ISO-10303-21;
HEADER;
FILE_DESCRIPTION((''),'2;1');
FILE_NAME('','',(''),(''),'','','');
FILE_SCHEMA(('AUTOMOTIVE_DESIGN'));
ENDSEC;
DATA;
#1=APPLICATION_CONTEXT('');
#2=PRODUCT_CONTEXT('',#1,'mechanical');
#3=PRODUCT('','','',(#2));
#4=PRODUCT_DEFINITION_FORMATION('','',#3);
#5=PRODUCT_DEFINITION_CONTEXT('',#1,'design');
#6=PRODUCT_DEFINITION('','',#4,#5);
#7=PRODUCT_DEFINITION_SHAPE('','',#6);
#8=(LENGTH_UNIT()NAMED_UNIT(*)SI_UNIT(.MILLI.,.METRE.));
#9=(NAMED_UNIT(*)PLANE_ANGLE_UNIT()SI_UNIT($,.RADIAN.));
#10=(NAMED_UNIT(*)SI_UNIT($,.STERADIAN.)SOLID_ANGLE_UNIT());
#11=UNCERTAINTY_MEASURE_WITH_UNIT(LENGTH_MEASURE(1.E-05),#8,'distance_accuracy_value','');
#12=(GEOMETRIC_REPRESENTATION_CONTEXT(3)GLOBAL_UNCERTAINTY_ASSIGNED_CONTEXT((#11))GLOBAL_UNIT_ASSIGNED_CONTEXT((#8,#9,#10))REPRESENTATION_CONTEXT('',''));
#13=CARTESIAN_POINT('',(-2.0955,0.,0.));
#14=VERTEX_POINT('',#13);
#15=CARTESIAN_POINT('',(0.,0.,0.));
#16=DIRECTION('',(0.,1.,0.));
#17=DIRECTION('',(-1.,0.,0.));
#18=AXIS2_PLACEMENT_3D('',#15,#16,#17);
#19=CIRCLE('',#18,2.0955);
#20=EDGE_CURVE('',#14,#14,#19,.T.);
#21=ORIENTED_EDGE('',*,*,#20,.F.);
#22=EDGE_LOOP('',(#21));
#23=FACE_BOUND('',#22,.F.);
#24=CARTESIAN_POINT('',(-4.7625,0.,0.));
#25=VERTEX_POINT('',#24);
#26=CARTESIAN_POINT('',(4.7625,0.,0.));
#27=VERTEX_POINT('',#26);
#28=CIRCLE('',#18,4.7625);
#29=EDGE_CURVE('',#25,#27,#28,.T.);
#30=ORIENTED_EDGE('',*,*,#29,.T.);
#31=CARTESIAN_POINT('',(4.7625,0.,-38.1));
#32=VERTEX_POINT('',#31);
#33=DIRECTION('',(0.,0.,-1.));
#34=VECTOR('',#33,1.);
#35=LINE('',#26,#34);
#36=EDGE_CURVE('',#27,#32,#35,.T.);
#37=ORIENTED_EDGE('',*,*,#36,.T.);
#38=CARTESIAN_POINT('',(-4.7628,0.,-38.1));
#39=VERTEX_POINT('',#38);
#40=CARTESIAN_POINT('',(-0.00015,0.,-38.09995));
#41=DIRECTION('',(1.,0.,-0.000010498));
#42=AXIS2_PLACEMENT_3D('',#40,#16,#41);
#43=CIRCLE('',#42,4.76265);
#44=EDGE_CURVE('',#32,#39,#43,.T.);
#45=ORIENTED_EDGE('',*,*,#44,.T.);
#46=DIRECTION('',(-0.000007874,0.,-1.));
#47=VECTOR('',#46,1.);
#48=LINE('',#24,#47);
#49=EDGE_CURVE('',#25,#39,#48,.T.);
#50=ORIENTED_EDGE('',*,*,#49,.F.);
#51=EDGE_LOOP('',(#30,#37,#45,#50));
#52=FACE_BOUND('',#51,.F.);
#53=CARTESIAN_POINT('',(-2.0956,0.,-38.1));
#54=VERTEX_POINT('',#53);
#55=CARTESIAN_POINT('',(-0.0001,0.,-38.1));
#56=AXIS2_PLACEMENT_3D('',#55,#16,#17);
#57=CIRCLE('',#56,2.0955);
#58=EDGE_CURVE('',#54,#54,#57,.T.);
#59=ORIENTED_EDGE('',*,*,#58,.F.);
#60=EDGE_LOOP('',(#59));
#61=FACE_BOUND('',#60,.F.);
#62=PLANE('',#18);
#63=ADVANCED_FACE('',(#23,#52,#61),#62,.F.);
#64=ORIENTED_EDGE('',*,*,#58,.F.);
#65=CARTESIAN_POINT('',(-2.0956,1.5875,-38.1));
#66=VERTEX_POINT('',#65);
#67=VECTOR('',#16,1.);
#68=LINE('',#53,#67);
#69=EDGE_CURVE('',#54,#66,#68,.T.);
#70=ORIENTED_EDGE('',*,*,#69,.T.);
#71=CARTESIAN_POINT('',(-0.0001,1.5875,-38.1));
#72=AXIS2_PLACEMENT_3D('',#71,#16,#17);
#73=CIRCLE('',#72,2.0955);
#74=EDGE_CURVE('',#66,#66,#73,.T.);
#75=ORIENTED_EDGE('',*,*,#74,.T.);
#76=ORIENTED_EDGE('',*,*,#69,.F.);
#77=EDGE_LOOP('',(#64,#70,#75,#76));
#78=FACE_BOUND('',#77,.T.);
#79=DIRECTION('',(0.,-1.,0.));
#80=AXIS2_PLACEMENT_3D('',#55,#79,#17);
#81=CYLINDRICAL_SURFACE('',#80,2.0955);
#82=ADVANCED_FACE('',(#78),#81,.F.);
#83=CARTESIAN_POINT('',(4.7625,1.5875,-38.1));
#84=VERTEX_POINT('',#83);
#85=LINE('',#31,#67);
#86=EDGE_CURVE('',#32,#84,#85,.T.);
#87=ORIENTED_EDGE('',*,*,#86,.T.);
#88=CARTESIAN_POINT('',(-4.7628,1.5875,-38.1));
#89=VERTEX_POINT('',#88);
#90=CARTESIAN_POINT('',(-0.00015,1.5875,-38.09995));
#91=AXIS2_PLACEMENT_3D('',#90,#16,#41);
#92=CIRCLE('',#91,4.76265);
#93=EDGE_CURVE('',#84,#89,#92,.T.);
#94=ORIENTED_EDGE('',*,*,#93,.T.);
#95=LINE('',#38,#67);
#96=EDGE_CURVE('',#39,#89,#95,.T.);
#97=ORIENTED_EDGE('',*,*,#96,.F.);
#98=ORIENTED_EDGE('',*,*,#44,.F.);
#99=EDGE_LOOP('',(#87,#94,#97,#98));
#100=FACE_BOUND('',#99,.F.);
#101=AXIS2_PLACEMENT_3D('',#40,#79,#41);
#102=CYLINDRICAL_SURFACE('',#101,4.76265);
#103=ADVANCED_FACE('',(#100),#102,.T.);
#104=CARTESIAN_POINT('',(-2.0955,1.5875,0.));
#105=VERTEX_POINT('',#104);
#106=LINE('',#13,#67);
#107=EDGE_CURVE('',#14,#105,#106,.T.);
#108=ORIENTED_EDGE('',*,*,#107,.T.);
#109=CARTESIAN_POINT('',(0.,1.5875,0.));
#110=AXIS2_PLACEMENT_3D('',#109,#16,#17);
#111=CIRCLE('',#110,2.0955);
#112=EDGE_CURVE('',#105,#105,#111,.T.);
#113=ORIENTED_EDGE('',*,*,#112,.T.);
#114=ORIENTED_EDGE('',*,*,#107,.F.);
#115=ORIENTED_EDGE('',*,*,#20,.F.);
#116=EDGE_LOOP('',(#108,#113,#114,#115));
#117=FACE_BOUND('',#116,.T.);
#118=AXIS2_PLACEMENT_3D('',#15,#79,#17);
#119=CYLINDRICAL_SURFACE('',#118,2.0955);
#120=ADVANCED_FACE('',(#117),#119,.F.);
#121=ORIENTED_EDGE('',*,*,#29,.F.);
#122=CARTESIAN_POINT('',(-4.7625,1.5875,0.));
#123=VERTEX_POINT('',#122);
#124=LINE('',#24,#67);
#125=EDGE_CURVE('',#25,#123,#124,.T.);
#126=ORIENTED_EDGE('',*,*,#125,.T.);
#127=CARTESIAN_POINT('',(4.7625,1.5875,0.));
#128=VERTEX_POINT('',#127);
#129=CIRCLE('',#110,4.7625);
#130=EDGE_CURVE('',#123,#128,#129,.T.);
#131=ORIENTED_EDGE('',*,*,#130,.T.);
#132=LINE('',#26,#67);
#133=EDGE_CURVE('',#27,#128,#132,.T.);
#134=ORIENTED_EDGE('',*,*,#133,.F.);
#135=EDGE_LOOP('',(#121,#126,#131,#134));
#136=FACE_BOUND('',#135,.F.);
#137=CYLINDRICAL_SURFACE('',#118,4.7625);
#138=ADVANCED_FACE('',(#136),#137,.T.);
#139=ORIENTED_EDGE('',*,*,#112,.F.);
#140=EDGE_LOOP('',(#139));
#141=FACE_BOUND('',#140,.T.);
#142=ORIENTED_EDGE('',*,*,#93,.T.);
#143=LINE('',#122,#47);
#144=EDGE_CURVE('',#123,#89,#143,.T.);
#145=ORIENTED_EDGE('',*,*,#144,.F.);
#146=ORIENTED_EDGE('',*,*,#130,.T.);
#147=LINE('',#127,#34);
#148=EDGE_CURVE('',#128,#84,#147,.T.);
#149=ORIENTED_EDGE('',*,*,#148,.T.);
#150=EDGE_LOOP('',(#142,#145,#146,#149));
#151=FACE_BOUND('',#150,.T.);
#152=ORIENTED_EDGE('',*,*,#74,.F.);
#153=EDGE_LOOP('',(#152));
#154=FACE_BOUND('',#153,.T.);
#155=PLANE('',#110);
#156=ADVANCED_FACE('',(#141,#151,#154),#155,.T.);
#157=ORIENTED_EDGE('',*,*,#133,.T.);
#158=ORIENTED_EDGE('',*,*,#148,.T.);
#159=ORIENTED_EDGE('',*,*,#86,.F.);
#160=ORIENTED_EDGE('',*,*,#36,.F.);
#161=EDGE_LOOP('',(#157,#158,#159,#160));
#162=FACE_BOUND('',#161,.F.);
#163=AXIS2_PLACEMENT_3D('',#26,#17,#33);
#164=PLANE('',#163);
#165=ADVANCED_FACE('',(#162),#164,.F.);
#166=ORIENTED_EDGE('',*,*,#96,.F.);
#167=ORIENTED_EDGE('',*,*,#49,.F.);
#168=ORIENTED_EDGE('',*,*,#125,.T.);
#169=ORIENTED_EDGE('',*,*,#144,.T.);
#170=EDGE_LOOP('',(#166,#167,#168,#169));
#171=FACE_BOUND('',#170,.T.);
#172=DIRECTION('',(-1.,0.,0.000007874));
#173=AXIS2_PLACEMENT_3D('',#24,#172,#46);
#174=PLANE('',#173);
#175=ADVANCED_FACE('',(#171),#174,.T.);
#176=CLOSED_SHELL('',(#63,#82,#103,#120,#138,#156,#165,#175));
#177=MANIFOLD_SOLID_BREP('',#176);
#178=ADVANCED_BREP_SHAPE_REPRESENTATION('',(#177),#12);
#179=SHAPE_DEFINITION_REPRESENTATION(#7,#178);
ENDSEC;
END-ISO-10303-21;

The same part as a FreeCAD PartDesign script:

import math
import FreeCAD as App
import Part
import Sketcher
from FreeCAD import Vector
Q = App.Units.Quantity

doc = App.newDocument("Part")
body = doc.addObject("PartDesign::Body", "Body")

# Sketch on XZ plane
sketch1 = body.newObject("Sketcher::SketchObject", "Sketch")
sketch1.AttachmentSupport = (doc.getObject("XZ_Plane"), [""])
sketch1.MapMode = "FlatFace"
sketch1.addGeometry(Part.ArcOfCircle(Part.Circle(Vector(0, 0, 0), Vector(0, 0, 1), 4.7625), math.radians(0), math.radians(180)), False)
sketch1.addGeometry(Part.LineSegment(Vector(4.7625, 0, 0), Vector(4.7625, -38.1, 0)), False)
sketch1.addGeometry(Part.ArcOfCircle(Part.Circle(Vector(-0.0001, -38.1, 0), Vector(0, 0, 1), 4.7626), math.radians(180), math.radians(360)), False)
sketch1.addGeometry(Part.LineSegment(Vector(-4.7628, -38.1, 0), Vector(-4.7625, 0, 0)), False)
sketch1.addGeometry(Part.Circle(Vector(0, 0, 0), Vector(0, 0, 1), 2.0955), False)
sketch1.addGeometry(Part.Circle(Vector(-0.0001, -38.1, 0), Vector(0, 0, 1), 2.0955), False)
sketch1.addConstraint(Sketcher.Constraint("Tangent", 0, 1, 1, 1))
sketch1.addConstraint(Sketcher.Constraint("Tangent", 1, 2, 2, 2))
sketch1.addConstraint(Sketcher.Constraint("Tangent", 2, 1, 3, 1))
sketch1.addConstraint(Sketcher.Constraint("Tangent", 3, 2, 0, 2))
sketch1.addConstraint(Sketcher.Constraint("Vertical", 1))
sketch1.addConstraint(Sketcher.Constraint("Coincident", 0, 3, -1, 1))
sketch1.addConstraint(Sketcher.Constraint("Coincident", 4, 3, -1, 1))
sketch1.addConstraint(Sketcher.Constraint("Coincident", 5, 3, 2, 3))
sketch1.addConstraint(Sketcher.Constraint("Equal", 0, 2))
sketch1.addConstraint(Sketcher.Constraint("Equal", 4, 5))
sketch1.addConstraint(Sketcher.Constraint("Diameter", 4, Q("0.165 in")))
sketch1.addConstraint(Sketcher.Constraint("DistanceY", 1, 2, 1, 1, Q("1.5 in")))
sketch1.addConstraint(Sketcher.Constraint("Radius", 0, Q("0.1875 in")))
pad1 = body.newObject("PartDesign::Pad", "Pad")
pad1.Profile = sketch1
pad1.Length = Q("0.0625 in")
pad1.Reversed = True

doc.recompute()
